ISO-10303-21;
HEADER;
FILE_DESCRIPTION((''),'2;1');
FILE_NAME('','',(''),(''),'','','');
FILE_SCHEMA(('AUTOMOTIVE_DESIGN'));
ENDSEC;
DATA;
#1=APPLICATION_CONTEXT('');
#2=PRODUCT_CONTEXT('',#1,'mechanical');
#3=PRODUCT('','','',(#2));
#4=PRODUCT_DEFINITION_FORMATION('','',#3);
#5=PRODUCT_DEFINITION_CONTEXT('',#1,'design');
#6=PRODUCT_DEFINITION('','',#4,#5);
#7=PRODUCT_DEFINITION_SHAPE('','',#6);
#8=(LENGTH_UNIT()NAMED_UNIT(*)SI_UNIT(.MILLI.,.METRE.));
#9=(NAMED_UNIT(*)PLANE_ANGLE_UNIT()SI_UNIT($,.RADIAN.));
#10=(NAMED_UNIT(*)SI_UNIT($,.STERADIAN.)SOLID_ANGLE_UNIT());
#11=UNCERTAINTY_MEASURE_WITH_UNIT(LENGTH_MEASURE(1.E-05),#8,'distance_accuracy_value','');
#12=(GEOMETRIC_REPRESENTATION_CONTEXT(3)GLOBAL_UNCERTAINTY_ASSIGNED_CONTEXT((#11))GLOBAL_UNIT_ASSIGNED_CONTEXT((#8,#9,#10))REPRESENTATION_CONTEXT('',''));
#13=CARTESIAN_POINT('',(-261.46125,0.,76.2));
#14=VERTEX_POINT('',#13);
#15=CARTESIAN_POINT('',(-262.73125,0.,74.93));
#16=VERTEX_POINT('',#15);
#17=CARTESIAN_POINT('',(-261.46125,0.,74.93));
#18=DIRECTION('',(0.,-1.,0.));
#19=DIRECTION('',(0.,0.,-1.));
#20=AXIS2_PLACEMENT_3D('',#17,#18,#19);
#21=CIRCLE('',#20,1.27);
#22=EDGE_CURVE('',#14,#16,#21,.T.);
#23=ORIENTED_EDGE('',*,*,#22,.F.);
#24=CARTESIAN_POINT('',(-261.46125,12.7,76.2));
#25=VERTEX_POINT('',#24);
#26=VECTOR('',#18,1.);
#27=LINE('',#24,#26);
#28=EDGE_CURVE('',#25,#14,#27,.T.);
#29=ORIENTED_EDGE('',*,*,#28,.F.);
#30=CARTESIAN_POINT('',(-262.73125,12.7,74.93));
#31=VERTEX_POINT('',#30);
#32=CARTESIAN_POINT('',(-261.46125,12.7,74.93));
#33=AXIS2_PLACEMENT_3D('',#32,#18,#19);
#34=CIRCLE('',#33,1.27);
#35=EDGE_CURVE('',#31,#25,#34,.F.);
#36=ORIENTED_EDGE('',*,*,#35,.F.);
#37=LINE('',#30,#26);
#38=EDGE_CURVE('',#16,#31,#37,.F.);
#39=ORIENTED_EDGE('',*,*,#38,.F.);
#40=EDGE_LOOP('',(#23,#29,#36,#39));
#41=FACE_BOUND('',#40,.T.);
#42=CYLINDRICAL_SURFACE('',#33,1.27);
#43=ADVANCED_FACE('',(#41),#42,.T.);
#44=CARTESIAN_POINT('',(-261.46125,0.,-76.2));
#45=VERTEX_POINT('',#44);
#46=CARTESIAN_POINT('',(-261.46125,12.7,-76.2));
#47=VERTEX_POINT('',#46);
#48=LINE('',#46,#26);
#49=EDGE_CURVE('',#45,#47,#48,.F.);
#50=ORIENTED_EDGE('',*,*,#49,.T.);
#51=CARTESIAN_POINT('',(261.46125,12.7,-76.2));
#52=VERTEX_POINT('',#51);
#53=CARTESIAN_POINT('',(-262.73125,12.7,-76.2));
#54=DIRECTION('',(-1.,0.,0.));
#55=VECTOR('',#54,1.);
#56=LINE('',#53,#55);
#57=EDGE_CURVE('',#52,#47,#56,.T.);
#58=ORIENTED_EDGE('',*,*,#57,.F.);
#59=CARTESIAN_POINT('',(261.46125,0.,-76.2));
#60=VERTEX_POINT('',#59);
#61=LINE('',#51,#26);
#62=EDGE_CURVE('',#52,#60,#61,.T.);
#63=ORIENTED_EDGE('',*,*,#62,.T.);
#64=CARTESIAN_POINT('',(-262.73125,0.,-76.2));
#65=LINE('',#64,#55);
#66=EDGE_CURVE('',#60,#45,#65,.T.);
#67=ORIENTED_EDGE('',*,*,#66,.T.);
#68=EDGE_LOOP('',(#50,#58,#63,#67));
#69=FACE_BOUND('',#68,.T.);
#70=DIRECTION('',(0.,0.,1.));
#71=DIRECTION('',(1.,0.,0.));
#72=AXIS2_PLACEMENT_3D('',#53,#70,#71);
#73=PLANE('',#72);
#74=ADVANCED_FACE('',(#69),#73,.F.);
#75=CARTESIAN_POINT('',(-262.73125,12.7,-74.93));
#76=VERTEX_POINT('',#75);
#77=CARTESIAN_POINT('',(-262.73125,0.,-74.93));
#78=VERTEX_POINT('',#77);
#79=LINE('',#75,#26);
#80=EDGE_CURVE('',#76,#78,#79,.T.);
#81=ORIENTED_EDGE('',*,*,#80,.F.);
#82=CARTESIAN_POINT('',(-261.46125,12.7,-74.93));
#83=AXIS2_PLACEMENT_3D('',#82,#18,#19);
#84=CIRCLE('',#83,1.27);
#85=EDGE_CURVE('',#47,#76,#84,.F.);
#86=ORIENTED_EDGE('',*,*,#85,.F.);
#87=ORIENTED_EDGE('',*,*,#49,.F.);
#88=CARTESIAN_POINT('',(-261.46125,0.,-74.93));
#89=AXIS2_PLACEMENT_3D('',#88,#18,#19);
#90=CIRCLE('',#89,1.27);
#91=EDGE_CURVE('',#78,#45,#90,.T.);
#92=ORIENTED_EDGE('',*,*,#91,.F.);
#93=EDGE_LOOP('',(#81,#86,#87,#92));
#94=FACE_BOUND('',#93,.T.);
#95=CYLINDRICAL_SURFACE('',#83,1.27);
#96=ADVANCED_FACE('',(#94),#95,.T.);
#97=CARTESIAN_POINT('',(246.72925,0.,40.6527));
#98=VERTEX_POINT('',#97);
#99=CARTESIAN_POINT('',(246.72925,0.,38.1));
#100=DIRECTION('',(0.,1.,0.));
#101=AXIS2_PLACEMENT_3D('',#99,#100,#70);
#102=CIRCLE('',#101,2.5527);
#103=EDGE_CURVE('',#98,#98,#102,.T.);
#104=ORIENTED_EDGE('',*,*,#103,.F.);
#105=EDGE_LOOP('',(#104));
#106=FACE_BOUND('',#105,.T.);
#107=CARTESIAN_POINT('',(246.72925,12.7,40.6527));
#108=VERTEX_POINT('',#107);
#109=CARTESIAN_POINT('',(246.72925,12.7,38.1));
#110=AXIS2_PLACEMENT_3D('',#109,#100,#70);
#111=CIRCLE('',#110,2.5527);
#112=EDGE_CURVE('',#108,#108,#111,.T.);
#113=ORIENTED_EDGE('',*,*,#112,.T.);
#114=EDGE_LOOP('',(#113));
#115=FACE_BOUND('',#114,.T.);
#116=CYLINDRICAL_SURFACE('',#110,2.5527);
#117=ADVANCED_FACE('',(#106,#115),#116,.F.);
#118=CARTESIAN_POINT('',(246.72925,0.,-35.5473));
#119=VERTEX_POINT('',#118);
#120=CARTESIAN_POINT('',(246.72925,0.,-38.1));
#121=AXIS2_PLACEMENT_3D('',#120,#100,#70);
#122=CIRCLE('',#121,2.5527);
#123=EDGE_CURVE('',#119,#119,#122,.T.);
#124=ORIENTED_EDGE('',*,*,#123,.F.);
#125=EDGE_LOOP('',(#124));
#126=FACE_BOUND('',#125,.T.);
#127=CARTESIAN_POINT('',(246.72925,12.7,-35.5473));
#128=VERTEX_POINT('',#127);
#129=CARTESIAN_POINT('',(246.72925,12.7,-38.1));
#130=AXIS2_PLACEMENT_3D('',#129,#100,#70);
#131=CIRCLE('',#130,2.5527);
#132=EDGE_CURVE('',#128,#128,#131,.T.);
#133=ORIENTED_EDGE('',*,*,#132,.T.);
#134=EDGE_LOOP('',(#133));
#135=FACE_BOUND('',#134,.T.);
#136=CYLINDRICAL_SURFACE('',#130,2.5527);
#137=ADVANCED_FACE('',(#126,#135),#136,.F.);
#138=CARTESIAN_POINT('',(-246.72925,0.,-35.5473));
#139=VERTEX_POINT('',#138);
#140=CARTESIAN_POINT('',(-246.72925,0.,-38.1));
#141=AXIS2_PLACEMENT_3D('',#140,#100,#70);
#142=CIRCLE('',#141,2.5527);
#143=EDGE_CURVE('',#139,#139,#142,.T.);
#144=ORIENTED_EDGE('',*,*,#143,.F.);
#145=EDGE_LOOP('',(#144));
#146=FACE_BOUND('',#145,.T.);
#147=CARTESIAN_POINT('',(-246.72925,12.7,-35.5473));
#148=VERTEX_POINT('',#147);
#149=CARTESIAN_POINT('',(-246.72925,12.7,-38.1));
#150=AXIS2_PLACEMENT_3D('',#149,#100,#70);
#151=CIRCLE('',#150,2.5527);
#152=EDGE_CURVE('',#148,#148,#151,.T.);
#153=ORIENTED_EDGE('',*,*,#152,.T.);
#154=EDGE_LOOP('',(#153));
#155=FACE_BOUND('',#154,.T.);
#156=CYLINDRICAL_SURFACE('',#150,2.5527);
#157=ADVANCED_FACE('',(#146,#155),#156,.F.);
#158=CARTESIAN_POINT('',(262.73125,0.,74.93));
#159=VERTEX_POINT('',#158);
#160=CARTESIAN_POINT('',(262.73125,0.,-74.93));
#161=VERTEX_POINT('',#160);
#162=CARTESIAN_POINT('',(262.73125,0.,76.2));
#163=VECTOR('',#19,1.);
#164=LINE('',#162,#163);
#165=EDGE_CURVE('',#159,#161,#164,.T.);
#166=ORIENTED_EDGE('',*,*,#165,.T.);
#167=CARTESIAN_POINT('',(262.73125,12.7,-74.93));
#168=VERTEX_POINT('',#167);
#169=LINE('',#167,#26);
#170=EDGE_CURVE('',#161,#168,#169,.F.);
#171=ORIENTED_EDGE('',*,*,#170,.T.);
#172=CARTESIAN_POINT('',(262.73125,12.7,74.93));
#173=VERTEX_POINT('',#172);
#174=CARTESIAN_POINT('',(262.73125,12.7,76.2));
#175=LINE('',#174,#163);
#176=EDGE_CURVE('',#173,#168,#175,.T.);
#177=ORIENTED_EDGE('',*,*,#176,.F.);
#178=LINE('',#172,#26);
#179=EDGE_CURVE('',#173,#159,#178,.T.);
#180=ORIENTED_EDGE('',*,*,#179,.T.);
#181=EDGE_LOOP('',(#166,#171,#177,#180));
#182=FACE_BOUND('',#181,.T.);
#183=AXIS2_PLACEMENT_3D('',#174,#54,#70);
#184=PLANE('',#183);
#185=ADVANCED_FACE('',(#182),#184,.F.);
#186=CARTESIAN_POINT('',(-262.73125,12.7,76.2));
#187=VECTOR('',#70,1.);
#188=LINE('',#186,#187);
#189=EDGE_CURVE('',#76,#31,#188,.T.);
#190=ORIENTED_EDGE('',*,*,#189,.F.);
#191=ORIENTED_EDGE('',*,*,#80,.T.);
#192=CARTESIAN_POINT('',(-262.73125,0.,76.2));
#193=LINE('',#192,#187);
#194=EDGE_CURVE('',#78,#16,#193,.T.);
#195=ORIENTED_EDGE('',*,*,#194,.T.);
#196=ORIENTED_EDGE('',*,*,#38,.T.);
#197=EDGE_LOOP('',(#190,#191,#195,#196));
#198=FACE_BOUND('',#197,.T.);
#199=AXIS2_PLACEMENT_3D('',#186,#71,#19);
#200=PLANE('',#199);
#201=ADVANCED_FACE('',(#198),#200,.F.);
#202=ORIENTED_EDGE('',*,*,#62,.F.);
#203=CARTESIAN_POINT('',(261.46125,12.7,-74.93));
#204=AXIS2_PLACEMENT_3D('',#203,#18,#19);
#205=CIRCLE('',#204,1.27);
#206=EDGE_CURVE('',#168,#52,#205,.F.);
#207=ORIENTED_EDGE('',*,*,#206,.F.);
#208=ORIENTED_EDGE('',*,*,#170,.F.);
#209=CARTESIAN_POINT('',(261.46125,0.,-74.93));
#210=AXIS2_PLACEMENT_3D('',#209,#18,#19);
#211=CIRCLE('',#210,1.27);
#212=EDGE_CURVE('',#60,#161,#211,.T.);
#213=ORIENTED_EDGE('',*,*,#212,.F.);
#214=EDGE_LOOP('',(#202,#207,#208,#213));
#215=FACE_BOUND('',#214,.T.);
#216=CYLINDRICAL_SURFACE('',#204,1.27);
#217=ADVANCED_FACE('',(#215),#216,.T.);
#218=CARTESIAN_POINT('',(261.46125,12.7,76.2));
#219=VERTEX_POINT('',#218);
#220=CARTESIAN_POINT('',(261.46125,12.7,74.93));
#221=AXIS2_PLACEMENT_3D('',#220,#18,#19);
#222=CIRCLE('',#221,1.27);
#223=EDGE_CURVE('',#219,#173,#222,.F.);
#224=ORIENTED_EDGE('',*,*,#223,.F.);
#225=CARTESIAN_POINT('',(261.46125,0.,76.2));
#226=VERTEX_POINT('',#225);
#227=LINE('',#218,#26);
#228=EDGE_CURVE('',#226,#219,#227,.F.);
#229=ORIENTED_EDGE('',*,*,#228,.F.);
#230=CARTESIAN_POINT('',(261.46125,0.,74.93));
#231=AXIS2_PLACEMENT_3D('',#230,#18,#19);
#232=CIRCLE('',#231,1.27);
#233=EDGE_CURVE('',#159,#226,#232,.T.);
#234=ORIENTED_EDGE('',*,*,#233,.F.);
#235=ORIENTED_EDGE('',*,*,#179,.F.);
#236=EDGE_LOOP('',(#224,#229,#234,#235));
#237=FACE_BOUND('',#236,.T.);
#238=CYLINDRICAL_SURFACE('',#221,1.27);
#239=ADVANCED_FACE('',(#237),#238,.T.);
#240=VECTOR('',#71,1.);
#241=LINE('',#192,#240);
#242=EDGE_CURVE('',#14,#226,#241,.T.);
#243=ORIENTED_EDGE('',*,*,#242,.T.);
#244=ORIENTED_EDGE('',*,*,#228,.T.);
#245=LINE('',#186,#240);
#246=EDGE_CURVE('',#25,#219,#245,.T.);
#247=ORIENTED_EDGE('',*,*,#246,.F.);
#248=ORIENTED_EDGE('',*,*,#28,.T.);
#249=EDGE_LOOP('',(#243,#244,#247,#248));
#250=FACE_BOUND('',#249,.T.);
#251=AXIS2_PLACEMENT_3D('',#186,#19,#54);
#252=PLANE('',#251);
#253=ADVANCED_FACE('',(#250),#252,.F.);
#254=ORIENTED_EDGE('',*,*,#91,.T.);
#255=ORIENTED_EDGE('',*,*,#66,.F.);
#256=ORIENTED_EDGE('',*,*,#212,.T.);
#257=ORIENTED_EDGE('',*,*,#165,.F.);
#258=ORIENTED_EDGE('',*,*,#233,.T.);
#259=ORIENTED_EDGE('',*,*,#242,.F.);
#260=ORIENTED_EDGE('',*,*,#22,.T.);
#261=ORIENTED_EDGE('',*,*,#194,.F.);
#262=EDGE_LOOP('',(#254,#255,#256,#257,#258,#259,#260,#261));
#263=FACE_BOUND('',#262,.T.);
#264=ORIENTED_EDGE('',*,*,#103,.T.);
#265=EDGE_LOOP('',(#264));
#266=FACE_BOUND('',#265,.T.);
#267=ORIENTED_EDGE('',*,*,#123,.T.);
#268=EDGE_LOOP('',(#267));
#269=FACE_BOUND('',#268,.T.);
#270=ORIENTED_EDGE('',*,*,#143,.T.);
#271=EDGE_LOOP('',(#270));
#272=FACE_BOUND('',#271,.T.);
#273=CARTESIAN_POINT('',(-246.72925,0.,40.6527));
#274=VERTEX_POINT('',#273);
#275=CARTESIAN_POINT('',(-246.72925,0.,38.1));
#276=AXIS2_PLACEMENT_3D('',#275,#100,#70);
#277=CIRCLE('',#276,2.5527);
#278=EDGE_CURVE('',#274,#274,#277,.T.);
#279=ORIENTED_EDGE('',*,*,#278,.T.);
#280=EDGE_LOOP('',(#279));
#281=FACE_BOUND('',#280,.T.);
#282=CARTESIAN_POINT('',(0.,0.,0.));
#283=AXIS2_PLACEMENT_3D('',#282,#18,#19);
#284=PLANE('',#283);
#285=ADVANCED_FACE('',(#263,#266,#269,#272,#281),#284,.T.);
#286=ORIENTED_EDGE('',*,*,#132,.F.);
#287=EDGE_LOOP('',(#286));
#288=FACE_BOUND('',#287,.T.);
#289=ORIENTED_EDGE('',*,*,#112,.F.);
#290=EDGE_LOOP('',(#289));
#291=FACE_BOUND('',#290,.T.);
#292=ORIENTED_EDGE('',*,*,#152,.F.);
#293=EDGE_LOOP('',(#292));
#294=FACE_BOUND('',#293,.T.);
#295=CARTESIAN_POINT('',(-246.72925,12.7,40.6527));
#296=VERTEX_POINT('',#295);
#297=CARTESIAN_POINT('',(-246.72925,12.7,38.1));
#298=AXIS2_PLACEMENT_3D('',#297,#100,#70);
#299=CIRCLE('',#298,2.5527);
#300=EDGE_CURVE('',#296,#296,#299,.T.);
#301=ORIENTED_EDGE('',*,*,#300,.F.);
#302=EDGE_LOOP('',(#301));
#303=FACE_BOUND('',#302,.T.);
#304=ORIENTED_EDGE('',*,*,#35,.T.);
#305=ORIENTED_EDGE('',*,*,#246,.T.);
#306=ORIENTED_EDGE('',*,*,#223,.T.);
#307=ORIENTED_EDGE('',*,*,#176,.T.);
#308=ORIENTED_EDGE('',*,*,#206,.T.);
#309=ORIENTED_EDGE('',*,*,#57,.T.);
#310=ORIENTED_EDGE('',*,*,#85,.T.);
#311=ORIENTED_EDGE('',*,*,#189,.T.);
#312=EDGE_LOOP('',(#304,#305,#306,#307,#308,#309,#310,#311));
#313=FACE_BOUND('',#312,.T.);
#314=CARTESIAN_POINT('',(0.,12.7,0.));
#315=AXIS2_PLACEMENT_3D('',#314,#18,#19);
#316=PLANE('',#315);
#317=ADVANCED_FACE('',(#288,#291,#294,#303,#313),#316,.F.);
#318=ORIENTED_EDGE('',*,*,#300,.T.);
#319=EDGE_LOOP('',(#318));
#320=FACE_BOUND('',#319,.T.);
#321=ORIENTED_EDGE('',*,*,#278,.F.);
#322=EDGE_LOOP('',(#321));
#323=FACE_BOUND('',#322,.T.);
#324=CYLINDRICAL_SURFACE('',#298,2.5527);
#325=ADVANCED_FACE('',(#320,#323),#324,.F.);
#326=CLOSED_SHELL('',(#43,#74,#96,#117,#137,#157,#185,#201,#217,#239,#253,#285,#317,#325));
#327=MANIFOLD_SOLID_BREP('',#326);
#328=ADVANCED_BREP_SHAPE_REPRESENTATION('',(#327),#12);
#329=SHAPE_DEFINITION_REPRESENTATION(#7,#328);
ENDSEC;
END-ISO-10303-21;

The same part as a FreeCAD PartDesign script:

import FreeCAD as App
import Part
import Sketcher
from FreeCAD import Vector
Q = App.Units.Quantity


def edges_at(feature, points):
    """Names of the edges that pass closest to the given points."""
    edges = feature.Shape.Edges
    near = lambda p: min(range(len(edges)), key=lambda i: edges[i].distToShape(Part.Vertex(*p))[0])
    return sorted({f"Edge{near(p) + 1}" for p in points})

doc = App.newDocument("Part")
body = doc.addObject("PartDesign::Body", "Body")

sketch1 = doc.addObject("Sketcher::SketchObject", "Sketch")
body.addObject(sketch1)
sketch1.AttachmentSupport = (doc.XZ_Plane, [""])
sketch1.MapMode = "FlatFace"
sketch1.addGeometry(Part.LineSegment(Vector(-263, -76, 0), Vector(-263, 76, 0)), False)
sketch1.addGeometry(Part.LineSegment(Vector(-263, 76, 0), Vector(263, 76, 0)), False)
sketch1.addGeometry(Part.LineSegment(Vector(263, 76, 0), Vector(263, -76, 0)), False)
sketch1.addGeometry(Part.LineSegment(Vector(263, -76, 0), Vector(-263, -76, 0)), False)
sketch1.addConstraint(Sketcher.Constraint("Coincident", 0, 2, 1, 1))
sketch1.addConstraint(Sketcher.Constraint("Coincident", 1, 2, 2, 1))
sketch1.addConstraint(Sketcher.Constraint("Coincident", 2, 2, 3, 1))
sketch1.addConstraint(Sketcher.Constraint("Coincident", 3, 2, 0, 1))
sketch1.addConstraint(Sketcher.Constraint("Vertical", 0))
sketch1.addConstraint(Sketcher.Constraint("Horizontal", 1))
sketch1.addConstraint(Sketcher.Constraint("Vertical", 2))
sketch1.addConstraint(Sketcher.Constraint("Horizontal", 3))
sketch1.addConstraint(Sketcher.Constraint("Symmetric", 0, 2, 2, 2, -1, 1))
sketch1.addConstraint(Sketcher.Constraint("DistanceY", 0, 1, 0, 2, Q("6 in")))
sketch1.addConstraint(Sketcher.Constraint("DistanceX", 1, 1, 1, 2, Q("20.6875 in")))
pad1 = doc.addObject("PartDesign::Pad", "Pad")
body.addObject(pad1)
pad1.Profile = sketch1
pad1.Length = Q("0.5 in")
pad1.Reversed = True

sketch2 = doc.addObject("Sketcher::SketchObject", "Sketch001")
body.addObject(sketch2)
sketch2.AttachmentSupport = (doc.XZ_Plane, [""])
sketch2.MapMode = "FlatFace"
sketch2.AttachmentOffset = App.Placement(Vector(0, 0, -0.5 * 25.4), App.Rotation())
sketch2.addGeometry(Part.Circle(Vector(246.7, 38.1, 0), Vector(0, 0, 1), 2.6), False)
sketch2.addGeometry(Part.Circle(Vector(-246.7, -38.1, 0), Vector(0, 0, 1), 2.6), False)
sketch2.addGeometry(Part.Circle(Vector(-246.7, 38.1, 0), Vector(0, 0, 1), 2.6), False)
sketch2.addGeometry(Part.Circle(Vector(246.7, -38.1, 0), Vector(0, 0, 1), 2.6), False)
sketch2.addConstraint(Sketcher.Constraint("Equal", 0, 1))
sketch2.addConstraint(Sketcher.Constraint("Equal", 1, 2))
sketch2.addConstraint(Sketcher.Constraint("Equal", 2, 3))
sketch2.addConstraint(Sketcher.Constraint("Symmetric", 0, 3, 1, 3, -1, 1))
sketch2.addConstraint(Sketcher.Constraint("Symmetric", 2, 3, 3, 3, -1, 1))
sketch2.addConstraint(Sketcher.Constraint("Symmetric", 0, 3, 2, 3, -2))
sketch2.addConstraint(Sketcher.Constraint("Diameter", 0, Q("0.201 in")))
sketch2.addConstraint(Sketcher.Constraint("DistanceY", 1, 3, 0, 3, Q("3 in")))
sketch2.addConstraint(Sketcher.Constraint("DistanceX", 1, 3, 0, 3, Q("19.4275 in")))
doc.recompute()
hole = doc.addObject("PartDesign::Hole", "Hole")
body.addObject(hole)
hole.Profile = sketch2
hole.ThreadType = "None"
hole.Diameter = Q("0.201 in")
hole.DepthType = "ThroughAll"
hole.Reversed = True
doc.recompute()

fillet = doc.addObject("PartDesign::Fillet", "Fillet")
body.addObject(fillet)
fillet.Base = (hole, edges_at(hole, [
    (262.731, 6.35, 76.2),
    (-262.731, 6.35, 76.2),
    (-262.731, 6.35, -76.2),
    (262.731, 6.35, -76.2),
]))
fillet.Radius = Q("0.05 in")

doc.recompute()
